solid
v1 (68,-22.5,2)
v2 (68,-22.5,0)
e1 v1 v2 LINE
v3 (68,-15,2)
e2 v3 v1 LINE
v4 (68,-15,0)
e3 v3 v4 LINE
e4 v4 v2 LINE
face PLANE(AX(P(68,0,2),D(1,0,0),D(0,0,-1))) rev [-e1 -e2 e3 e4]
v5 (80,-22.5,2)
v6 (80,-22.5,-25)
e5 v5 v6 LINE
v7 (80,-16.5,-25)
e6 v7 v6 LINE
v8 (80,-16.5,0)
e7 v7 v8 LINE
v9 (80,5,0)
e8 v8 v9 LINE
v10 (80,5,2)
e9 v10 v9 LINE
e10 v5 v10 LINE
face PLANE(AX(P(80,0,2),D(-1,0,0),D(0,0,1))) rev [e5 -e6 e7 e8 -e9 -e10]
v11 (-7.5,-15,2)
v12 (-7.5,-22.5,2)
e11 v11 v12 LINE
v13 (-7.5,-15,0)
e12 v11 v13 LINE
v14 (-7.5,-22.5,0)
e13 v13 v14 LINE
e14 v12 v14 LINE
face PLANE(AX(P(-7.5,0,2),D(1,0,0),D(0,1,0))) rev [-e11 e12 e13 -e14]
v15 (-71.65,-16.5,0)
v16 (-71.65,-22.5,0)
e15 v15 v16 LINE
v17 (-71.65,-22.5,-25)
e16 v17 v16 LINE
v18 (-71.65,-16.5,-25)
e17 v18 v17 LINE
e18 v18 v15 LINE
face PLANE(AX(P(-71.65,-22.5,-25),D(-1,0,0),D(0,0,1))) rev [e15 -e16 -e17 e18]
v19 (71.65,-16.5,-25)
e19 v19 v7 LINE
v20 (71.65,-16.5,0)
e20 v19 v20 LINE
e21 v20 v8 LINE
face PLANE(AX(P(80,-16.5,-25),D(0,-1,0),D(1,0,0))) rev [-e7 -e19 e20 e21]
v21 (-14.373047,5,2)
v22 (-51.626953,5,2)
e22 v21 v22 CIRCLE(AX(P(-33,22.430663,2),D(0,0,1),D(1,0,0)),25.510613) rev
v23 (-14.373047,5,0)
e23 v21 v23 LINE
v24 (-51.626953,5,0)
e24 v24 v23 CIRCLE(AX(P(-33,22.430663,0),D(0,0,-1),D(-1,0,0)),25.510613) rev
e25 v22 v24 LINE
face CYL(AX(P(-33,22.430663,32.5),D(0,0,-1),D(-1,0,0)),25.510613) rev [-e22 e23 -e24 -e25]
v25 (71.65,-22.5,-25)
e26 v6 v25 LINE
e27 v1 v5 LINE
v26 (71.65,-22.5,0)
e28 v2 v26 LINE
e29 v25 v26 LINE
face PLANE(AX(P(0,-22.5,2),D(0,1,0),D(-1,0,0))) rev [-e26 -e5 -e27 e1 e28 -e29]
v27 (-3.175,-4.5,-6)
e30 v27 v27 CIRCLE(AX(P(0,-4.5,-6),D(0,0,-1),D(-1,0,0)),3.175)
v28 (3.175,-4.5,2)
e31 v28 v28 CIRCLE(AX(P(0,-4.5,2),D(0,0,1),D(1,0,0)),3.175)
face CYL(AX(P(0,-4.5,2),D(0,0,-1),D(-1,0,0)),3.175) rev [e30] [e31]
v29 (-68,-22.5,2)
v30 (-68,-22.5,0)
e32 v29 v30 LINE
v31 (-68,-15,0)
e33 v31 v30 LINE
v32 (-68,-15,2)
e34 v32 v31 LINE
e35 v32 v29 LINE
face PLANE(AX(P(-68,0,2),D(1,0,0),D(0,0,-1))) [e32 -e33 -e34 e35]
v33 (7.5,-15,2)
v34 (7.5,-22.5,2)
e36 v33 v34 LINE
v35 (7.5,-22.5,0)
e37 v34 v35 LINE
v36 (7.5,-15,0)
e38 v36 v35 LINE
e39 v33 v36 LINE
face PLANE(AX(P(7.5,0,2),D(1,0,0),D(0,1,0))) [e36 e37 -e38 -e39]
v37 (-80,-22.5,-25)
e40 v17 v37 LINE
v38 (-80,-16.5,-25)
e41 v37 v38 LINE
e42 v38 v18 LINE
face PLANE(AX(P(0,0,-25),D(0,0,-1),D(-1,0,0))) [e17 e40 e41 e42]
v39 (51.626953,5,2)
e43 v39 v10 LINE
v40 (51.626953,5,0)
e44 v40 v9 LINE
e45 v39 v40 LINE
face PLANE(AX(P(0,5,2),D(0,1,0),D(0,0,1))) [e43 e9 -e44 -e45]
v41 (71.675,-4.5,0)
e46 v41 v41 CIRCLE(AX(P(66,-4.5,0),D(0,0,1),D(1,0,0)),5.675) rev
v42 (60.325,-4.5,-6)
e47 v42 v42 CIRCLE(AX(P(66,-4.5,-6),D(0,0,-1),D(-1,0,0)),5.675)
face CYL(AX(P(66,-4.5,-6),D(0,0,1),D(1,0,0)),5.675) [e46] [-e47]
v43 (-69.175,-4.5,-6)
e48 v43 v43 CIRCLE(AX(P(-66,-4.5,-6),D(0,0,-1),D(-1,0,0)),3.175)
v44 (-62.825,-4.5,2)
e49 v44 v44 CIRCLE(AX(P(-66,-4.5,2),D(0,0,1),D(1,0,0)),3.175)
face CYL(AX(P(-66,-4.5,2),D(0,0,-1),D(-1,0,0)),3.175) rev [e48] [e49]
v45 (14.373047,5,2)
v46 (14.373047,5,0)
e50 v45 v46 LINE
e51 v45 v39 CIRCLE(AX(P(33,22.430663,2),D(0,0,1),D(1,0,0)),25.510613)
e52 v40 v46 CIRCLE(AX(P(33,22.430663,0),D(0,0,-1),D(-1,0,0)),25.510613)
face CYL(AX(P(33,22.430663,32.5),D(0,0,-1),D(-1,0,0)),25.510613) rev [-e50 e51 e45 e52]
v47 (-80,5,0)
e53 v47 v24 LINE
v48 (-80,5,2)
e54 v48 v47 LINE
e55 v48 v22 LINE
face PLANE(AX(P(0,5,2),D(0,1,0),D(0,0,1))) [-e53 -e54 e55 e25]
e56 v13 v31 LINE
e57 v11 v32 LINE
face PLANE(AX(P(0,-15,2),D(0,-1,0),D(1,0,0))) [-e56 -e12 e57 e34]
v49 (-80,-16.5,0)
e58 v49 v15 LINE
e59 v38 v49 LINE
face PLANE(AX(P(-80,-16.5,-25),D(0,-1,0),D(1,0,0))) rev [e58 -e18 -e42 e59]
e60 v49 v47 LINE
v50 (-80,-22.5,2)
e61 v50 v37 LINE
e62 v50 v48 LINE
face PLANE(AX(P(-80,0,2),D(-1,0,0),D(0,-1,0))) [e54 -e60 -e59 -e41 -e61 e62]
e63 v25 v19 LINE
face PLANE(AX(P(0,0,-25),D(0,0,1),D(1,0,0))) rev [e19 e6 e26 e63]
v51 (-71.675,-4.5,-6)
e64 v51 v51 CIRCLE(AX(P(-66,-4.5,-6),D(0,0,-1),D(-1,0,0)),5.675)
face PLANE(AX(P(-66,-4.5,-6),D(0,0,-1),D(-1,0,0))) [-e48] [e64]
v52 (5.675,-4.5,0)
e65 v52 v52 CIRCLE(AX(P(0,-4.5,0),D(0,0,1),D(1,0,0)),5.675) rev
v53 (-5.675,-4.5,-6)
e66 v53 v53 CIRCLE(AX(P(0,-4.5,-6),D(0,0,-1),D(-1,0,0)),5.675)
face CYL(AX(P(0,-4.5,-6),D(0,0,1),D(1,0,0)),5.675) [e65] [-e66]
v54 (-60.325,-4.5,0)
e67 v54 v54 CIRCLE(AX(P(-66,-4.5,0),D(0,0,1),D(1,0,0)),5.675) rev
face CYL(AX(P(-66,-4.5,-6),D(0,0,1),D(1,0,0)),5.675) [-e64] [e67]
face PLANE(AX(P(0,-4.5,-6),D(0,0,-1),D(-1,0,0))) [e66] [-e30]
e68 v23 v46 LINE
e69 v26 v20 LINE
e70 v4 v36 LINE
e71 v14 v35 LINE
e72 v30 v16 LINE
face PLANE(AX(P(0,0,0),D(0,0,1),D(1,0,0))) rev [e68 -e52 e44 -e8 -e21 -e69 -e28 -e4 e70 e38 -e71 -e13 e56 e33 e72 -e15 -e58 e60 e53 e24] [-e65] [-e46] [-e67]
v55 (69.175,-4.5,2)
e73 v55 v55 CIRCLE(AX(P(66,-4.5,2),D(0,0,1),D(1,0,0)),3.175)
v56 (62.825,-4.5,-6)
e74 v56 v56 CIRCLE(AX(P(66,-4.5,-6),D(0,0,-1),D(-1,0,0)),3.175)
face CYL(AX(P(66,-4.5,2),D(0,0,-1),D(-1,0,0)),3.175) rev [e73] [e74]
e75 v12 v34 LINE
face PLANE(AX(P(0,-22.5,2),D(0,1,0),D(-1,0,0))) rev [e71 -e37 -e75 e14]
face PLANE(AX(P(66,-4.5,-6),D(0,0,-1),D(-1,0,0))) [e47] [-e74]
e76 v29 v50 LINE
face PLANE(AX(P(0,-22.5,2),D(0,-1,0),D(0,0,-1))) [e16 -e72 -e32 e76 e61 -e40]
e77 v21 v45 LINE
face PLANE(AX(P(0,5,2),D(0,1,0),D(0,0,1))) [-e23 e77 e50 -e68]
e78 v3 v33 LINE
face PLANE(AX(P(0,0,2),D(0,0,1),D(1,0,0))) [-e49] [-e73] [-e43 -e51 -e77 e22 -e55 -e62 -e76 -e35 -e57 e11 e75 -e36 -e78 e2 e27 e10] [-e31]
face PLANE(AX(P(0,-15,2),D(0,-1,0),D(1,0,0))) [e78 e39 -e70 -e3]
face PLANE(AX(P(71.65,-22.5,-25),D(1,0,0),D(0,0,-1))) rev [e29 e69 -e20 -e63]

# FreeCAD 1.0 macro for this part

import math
import FreeCAD as App
import Part
import Sketcher

V = App.Vector

doc = App.newDocument("Part")
body = doc.addObject("PartDesign::Body", "Body")

sketch1 = body.newObject("Sketcher::SketchObject", "Sketch")
sketch1.AttachmentSupport = (doc.getObject("XY_Plane"), [""])
sketch1.MapMode = "FlatFace"
sketch1.addGeometry([
    Part.LineSegment(V(7.5, -22.5, 0), V(7.5, -15, 0)),
    Part.LineSegment(V(7.5, -15, 0), V(68, -15, 0)),
    Part.LineSegment(V(68, -15, 0), V(68, -22.5, 0)),
    Part.LineSegment(V(68, -22.5, 0), V(80, -22.5, 0)),
    Part.LineSegment(V(80, -22.5, 0), V(80, 5, 0)),
    Part.LineSegment(V(80, 5, 0), V(-80, 5, 0)),
    Part.LineSegment(V(-80, 5, 0), V(-80, -22.5, 0)),
    Part.LineSegment(V(-80, -22.5, 0), V(-68, -22.5, 0)),
    Part.LineSegment(V(-68, -22.5, 0), V(-68, -15, 0)),
    Part.LineSegment(V(-68, -15, 0), V(-7.5, -15, 0)),
    Part.LineSegment(V(-7.5, -15, 0), V(-7.5, -22.5, 0)),
    Part.LineSegment(V(-7.5, -22.5, 0), V(7.5, -22.5, 0)),
    Part.Circle(V(-66, -4.5, 0), V(0, 0, 1), 3.2),
    Part.Circle(V(0, -4.5, 0), V(0, 0, 1), 3.2),
    Part.Circle(V(66, -4.5, 0), V(0, 0, 1), 3.2),
], False)
sketch1.addConstraint([
    Sketcher.Constraint("Coincident", 0, 2, 1, 1),
    Sketcher.Constraint("Coincident", 1, 2, 2, 1),
    Sketcher.Constraint("Coincident", 2, 2, 3, 1),
    Sketcher.Constraint("Coincident", 3, 2, 4, 1),
    Sketcher.Constraint("Coincident", 4, 2, 5, 1),
    Sketcher.Constraint("Coincident", 5, 2, 6, 1),
    Sketcher.Constraint("Coincident", 6, 2, 7, 1),
    Sketcher.Constraint("Coincident", 7, 2, 8, 1),
    Sketcher.Constraint("Coincident", 8, 2, 9, 1),
    Sketcher.Constraint("Coincident", 9, 2, 10, 1),
    Sketcher.Constraint("Coincident", 10, 2, 11, 1),
    Sketcher.Constraint("Coincident", 11, 2, 0, 1),
    Sketcher.Constraint("Vertical", 0),
    Sketcher.Constraint("Horizontal", 1),
    Sketcher.Constraint("Vertical", 2),
    Sketcher.Constraint("Horizontal", 3),
    Sketcher.Constraint("Vertical", 4),
    Sketcher.Constraint("Horizontal", 5),
    Sketcher.Constraint("Vertical", 6),
    Sketcher.Constraint("Horizontal", 7),
    Sketcher.Constraint("Vertical", 8),
    Sketcher.Constraint("Horizontal", 9),
    Sketcher.Constraint("Vertical", 10),
    Sketcher.Constraint("Horizontal", 11),
    Sketcher.Constraint("Equal", 12, 13),
    Sketcher.Constraint("Equal", 13, 14),
    Sketcher.Constraint("Symmetric", 12, 3, 14, 3, -2),
    Sketcher.Constraint("Symmetric", 3, 2, 6, 2, -2),
    Sketcher.Constraint("Symmetric", 1, 2, 8, 2, -2),
    Sketcher.Constraint("PointOnObject", 13, 3, -2),
    Sketcher.Constraint("Horizontal", 12, 3, 13, 3),
    Sketcher.Constraint("Horizontal", 7, 2, 10, 2),
    Sketcher.Constraint("Equal", 1, 9),
    Sketcher.Constraint("Diameter", 12, 6.35),
    Sketcher.Constraint("DistanceX", 3, 1, 3, 2, 12.0),
    Sketcher.Constraint("DistanceX", 5, 2, 5, 1, 160.0),
    Sketcher.Constraint("DistanceX", 11, 1, 11, 2, 15.0),
    Sketcher.Constraint("DistanceY", 0, 1, 0, 2, 7.5),
    Sketcher.Constraint("DistanceY", 4, 1, 4, 2, 27.5),
    Sketcher.Constraint("DistanceX", 12, 3, -1, 1, 66.0),
    Sketcher.Constraint("DistanceY", 0, 2, -1, 1, 15.0),
    Sketcher.Constraint("DistanceY", 2, 2, 14, 3, 18.0),
])
pad1 = body.newObject("PartDesign::Pad", "Pad")
pad1.Profile = sketch1
pad1.Length = 2

sketch2 = body.newObject("Sketcher::SketchObject", "Sketch001")
sketch2.AttachmentSupport = (doc.getObject("XY_Plane"), [""])
sketch2.MapMode = "FlatFace"
sketch2.addGeometry([
    Part.LineSegment(V(80, -16, 0), V(80, -22, 0)),
    Part.LineSegment(V(80, -22, 0), V(72, -22, 0)),
    Part.LineSegment(V(72, -22, 0), V(72, -16, 0)),
    Part.LineSegment(V(72, -16, 0), V(80, -16, 0)),
    Part.LineSegment(V(-72, -16, 0), V(-72, -22, 0)),
    Part.LineSegment(V(-72, -22, 0), V(-80, -22, 0)),
    Part.LineSegment(V(-80, -22, 0), V(-80, -16, 0)),
    Part.LineSegment(V(-80, -16, 0), V(-72, -16, 0)),
], False)
sketch2.addConstraint([
    Sketcher.Constraint("Coincident", 0, 2, 1, 1),
    Sketcher.Constraint("Coincident", 1, 2, 2, 1),
    Sketcher.Constraint("Coincident", 2, 2, 3, 1),
    Sketcher.Constraint("Coincident", 3, 2, 0, 1),
    Sketcher.Constraint("Coincident", 4, 2, 5, 1),
    Sketcher.Constraint("Coincident", 5, 2, 6, 1),
    Sketcher.Constraint("Coincident", 6, 2, 7, 1),
    Sketcher.Constraint("Coincident", 7, 2, 4, 1),
    Sketcher.Constraint("Vertical", 0),
    Sketcher.Constraint("Horizontal", 1),
    Sketcher.Constraint("Vertical", 2),
    Sketcher.Constraint("Horizontal", 3),
    Sketcher.Constraint("Vertical", 4),
    Sketcher.Constraint("Horizontal", 5),
    Sketcher.Constraint("Vertical", 6),
    Sketcher.Constraint("Horizontal", 7),
    Sketcher.Constraint("Symmetric", 1, 2, 4, 2, -2),
    Sketcher.Constraint("Symmetric", 3, 2, 6, 2, -2),
    Sketcher.Constraint("DistanceY", 0, 2, 0, 1, 6.0),
    Sketcher.Constraint("DistanceX", -1, 1, 0, 2, 80.0),
    Sketcher.Constraint("DistanceX", 1, 2, 1, 1, 8.35),
    Sketcher.Constraint("DistanceY", 0, 2, -1, 1, 22.5),
])
pad2 = body.newObject("PartDesign::Pad", "Pad001")
pad2.Profile = sketch2
pad2.Length = 25
pad2.Reversed = True

sketch3 = body.newObject("Sketcher::SketchObject", "Sketch002")
sketch3.AttachmentSupport = (doc.getObject("XY_Plane"), [""])
sketch3.MapMode = "FlatFace"
sketch3.addGeometry([
    Part.LineSegment(V(-52, 5, 0), V(-14, 5, 0)),
    Part.ArcOfCircle(Part.Circle(V(-33, 22, 0), V(0, 0, 1), 26), math.radians(-137), math.radians(-43)),
    Part.LineSegment(V(14, 5, 0), V(52, 5, 0)),
    Part.ArcOfCircle(Part.Circle(V(33, 22, 0), V(0, 0, 1), 26), math.radians(-137), math.radians(-43)),
], False)
sketch3.addConstraint([
    Sketcher.Constraint("Coincident", 0, 1, 1, 1),
    Sketcher.Constraint("Coincident", 1, 2, 0, 2),
    Sketcher.Constraint("Coincident", 2, 1, 3, 1),
    Sketcher.Constraint("Coincident", 3, 2, 2, 2),
    Sketcher.Constraint("Horizontal", 0),
    Sketcher.Constraint("Horizontal", 2),
    Sketcher.Constraint("Equal", 1, 3),
    Sketcher.Constraint("Symmetric", 1, 3, 3, 3, -2),
    Sketcher.Constraint("Horizontal", 1, 2, 2, 1),
    Sketcher.Constraint("DistanceX", 1, 3, -1, 1, 33.0),
    Sketcher.Constraint("DistanceY", -1, 1, 0, 1, 5.0),
    Sketcher.Constraint("Radius", 1, 25.510613),
    Sketcher.Constraint("DistanceX", 0, 1, 0, 2, 37.253905),
])
pocket1 = body.newObject("PartDesign::Pocket", "Pocket")
pocket1.Profile = sketch3
pocket1.Length = 32.5
pocket1.Reversed = True

sketch4 = body.newObject("Sketcher::SketchObject", "Sketch003")
sketch4.AttachmentSupport = (doc.getObject("XY_Plane"), [""])
sketch4.MapMode = "FlatFace"
sketch4.AttachmentOffset = App.Placement(V(0, 0, -6), App.Rotation())
sketch4.addGeometry([
    Part.Circle(V(66, -4.5, 0), V(0, 0, 1), 5.7),
    Part.Circle(V(66, -4.5, 0), V(0, 0, 1), 3.2),
    Part.Circle(V(0, -4.5, 0), V(0, 0, 1), 5.7),
    Part.Circle(V(0, -4.5, 0), V(0, 0, 1), 3.2),
    Part.Circle(V(-66, -4.5, 0), V(0, 0, 1), 5.7),
    Part.Circle(V(-66, -4.5, 0), V(0, 0, 1), 3.2),
], False)
sketch4.addConstraint([
    Sketcher.Constraint("Coincident", 1, 3, 0, 3),
    Sketcher.Constraint("Coincident", 3, 3, 2, 3),
    Sketcher.Constraint("Coincident", 5, 3, 4, 3),
    Sketcher.Constraint("Equal", 0, 2),
    Sketcher.Constraint("Equal", 1, 3),
    Sketcher.Constraint("Equal", 2, 4),
    Sketcher.Constraint("Equal", 3, 5),
    Sketcher.Constraint("Symmetric", 0, 3, 4, 3, -2),
    Sketcher.Constraint("PointOnObject", 2, 3, -2),
    Sketcher.Constraint("Horizontal", 1, 3, 2, 3),
    Sketcher.Constraint("Diameter", 0, 11.35),
    Sketcher.Constraint("Diameter", 1, 6.35),
    Sketcher.Constraint("DistanceX", -1, 1, 0, 3, 66.0),
    Sketcher.Constraint("DistanceY", 0, 3, -1, 1, 4.5),
])
pad3 = body.newObject("PartDesign::Pad", "Pad002")
pad3.Profile = sketch4
pad3.Length = 6

doc.recompute()
